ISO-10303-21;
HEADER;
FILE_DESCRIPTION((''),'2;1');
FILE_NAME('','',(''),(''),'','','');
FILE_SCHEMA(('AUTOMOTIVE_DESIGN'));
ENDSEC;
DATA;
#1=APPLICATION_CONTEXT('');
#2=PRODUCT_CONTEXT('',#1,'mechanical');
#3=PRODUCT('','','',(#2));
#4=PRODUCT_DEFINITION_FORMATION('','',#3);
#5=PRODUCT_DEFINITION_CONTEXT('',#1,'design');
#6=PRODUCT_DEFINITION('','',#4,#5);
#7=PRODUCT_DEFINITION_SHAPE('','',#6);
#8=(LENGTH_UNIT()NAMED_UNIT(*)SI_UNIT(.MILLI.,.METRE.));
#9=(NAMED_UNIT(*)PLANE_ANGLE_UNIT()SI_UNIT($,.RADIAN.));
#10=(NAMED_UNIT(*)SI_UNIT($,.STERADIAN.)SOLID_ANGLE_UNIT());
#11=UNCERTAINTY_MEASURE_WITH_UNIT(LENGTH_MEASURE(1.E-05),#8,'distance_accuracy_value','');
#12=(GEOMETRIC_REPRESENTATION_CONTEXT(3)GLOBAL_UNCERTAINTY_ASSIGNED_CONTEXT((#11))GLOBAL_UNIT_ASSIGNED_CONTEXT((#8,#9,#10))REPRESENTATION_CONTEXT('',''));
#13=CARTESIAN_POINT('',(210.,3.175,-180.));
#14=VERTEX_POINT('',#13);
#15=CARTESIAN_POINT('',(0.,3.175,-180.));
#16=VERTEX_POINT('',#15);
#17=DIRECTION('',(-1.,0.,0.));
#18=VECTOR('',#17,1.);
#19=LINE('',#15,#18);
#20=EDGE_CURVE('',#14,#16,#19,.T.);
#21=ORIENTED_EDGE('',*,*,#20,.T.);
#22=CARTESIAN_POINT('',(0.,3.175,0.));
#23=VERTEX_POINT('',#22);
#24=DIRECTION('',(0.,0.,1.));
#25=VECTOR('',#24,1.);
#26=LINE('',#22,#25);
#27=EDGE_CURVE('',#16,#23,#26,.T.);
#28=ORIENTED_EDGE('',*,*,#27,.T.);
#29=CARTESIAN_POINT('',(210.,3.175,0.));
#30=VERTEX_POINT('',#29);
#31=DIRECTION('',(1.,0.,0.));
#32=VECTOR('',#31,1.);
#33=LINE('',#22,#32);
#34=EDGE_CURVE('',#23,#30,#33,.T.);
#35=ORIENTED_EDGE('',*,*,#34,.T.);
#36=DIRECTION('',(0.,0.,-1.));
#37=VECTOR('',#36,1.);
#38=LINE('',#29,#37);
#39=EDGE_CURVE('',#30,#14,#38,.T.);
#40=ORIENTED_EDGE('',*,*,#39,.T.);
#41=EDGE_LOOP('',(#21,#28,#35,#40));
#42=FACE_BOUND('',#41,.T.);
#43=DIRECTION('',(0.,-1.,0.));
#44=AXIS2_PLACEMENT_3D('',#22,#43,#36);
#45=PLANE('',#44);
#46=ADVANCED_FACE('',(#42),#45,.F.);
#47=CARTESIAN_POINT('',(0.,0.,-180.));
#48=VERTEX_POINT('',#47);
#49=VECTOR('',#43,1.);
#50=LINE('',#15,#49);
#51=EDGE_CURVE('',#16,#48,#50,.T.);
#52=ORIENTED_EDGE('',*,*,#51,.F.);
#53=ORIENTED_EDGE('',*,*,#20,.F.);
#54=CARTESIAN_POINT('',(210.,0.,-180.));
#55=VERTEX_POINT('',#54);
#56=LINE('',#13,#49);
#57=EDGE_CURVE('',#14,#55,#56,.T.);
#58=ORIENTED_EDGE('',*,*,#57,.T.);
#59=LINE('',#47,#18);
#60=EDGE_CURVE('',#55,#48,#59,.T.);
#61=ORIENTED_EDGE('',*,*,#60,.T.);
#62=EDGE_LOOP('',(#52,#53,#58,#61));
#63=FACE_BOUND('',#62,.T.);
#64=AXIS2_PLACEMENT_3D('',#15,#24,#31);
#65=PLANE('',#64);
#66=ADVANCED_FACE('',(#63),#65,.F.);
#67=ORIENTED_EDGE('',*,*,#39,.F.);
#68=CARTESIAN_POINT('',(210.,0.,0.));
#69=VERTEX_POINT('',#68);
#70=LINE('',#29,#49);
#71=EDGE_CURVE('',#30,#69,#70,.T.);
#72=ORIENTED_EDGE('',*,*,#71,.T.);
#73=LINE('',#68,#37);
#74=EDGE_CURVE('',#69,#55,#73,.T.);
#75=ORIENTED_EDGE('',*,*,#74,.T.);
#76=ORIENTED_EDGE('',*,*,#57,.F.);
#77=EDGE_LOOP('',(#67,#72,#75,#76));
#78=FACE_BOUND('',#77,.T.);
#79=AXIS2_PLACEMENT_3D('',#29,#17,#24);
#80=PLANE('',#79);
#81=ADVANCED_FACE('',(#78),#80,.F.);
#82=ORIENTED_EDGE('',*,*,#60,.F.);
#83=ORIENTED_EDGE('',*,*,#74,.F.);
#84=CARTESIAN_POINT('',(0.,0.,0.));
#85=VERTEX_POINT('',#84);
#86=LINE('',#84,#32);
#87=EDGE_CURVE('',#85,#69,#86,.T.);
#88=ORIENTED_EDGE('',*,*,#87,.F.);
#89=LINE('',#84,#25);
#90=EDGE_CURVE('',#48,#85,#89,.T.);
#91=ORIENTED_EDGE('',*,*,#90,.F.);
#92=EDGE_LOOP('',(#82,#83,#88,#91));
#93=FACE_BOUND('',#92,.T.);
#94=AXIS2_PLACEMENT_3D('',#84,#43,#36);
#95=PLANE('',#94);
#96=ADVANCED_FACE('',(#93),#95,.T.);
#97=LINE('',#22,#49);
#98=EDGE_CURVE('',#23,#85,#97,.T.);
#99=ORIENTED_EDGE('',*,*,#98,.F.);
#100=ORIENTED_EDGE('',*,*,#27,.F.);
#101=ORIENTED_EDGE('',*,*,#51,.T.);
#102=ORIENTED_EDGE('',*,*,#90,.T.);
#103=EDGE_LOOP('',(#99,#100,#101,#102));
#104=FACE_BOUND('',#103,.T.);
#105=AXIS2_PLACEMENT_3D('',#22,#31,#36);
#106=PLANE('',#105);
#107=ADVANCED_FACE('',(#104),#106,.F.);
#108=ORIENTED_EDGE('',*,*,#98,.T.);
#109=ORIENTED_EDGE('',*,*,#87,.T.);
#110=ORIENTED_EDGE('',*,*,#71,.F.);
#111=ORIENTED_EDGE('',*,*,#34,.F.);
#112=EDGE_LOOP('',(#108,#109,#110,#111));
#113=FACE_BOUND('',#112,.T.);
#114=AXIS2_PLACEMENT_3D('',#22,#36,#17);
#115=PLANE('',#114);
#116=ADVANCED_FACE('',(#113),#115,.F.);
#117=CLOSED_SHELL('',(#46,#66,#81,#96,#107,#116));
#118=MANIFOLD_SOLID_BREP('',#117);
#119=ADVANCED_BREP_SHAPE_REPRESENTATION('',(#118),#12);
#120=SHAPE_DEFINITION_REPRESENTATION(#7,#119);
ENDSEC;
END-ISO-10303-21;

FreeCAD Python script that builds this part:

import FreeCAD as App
import Part
import Sketcher

V = App.Vector
Q = App.Units.Quantity


def add_polygon(sketch, points):
    """Adds a closed chain of lines whose ends are joined by coincident constraints."""
    first, n = sketch.GeometryCount, len(points)
    for a, b in zip(points, points[1:] + points[:1]):
        sketch.addGeometry(Part.LineSegment(App.Vector(*a, 0), App.Vector(*b, 0)), False)
    for i in range(n):
        sketch.addConstraint(Sketcher.Constraint("Coincident", first + i, 2, first + (i + 1) % n, 1))

doc = App.newDocument("Part")
body = doc.addObject("PartDesign::Body", "Body")

# Sketch on XZ plane
sketch1 = doc.addObject("Sketcher::SketchObject", "Sketch")
body.addObject(sketch1)
sketch1.AttachmentSupport = (doc.XZ_Plane, [""])
sketch1.MapMode = "FlatFace"
add_polygon(sketch1, [(0, -180), (0, 0), (210, 0), (210, -180)])  # lines 0-3
sketch1.addConstraint([
    Sketcher.Constraint("Vertical", 0),
    Sketcher.Constraint("Horizontal", 1),
    Sketcher.Constraint("Vertical", 2),
    Sketcher.Constraint("Horizontal", 3),
    Sketcher.Constraint("Coincident", 0, 2, -1, 1),
    Sketcher.Constraint("DistanceX", 1, 1, 1, 2, Q("210 mm")),
    Sketcher.Constraint("DistanceY", 0, 1, 0, 2, Q("180 mm")),
])
pad1 = doc.addObject("PartDesign::Pad", "Pad")
body.addObject(pad1)
pad1.Profile = sketch1
pad1.Length = 3.175
pad1.Reversed = True

doc.recompute()
